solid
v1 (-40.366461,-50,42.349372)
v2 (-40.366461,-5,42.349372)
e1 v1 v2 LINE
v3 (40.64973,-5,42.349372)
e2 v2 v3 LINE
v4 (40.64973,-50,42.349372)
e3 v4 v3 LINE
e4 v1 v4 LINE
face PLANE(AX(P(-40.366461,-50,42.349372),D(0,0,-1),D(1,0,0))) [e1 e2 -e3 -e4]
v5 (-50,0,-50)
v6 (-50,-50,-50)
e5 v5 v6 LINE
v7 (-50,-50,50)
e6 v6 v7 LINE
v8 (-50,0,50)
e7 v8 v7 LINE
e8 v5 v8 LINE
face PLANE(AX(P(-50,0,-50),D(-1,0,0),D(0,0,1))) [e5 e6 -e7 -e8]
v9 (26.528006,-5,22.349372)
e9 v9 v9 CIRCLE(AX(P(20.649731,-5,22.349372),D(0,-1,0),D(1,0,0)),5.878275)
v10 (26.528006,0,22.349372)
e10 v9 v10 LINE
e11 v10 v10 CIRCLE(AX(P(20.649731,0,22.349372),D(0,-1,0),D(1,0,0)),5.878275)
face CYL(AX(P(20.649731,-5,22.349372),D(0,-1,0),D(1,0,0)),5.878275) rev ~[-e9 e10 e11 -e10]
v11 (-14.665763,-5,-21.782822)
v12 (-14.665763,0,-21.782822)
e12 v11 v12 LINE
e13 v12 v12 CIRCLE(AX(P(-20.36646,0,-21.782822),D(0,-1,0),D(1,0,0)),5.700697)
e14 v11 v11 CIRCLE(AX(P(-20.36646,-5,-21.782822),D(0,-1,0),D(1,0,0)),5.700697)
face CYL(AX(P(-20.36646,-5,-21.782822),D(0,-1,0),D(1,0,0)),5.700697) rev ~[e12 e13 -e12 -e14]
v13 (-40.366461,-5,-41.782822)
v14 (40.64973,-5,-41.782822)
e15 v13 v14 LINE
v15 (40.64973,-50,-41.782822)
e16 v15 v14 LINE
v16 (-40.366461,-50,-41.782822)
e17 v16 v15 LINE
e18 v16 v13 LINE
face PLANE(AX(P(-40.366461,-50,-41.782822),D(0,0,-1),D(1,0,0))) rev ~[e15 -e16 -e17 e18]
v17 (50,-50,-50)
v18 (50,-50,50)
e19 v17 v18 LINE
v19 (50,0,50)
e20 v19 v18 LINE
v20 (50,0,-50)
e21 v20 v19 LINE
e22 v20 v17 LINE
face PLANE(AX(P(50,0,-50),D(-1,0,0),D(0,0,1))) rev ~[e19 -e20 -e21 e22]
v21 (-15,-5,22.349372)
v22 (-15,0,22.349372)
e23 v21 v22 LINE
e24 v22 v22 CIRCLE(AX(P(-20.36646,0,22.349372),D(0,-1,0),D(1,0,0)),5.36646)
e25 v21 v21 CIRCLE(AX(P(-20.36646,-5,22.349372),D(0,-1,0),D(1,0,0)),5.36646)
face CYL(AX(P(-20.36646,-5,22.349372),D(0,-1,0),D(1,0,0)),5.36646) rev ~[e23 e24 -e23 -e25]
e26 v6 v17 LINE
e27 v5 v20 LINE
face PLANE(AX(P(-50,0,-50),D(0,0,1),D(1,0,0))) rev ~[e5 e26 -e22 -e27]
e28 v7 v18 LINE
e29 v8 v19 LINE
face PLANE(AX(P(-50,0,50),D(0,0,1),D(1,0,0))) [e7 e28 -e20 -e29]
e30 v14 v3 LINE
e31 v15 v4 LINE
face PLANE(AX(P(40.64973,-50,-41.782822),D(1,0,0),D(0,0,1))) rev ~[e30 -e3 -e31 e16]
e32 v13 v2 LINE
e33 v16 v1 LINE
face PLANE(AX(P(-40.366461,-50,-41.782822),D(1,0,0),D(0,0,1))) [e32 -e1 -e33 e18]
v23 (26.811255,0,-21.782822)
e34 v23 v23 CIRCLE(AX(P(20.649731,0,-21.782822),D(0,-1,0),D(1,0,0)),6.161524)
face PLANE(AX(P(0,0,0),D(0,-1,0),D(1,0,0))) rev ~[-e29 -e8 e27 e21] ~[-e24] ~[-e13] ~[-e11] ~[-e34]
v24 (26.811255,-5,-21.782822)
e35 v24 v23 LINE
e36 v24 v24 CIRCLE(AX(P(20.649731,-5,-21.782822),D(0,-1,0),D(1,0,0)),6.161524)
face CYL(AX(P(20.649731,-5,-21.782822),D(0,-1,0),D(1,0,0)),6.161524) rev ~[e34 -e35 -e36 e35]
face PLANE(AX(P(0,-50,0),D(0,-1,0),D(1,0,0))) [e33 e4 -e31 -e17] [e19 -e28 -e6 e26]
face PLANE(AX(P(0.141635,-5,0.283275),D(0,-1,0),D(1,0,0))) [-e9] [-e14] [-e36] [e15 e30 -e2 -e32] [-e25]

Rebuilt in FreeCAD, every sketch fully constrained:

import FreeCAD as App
import Part
import Sketcher
from FreeCAD import Vector

doc = App.newDocument("Part")
params = doc.addObject("Spreadsheet::Sheet", "Params")
for row, (alias, value) in enumerate([
    ("sketch1_width", "100 mm"),
    ("pad1_length", "50 mm"),
    ("pocket1_length", "45 mm"),
    ("pocket2_length", "25 mm"),
    ("pocket3_length", "19.5 mm"),
], start=1):
    params.set(f"A{row}", alias)
    params.set(f"B{row}", "=" + value)
    params.setAlias(f"B{row}", alias)

body = doc.addObject("PartDesign::Body", "Body")

sketch1 = body.newObject("Sketcher::SketchObject", "Sketch")
sketch1.AttachmentSupport = (doc.getObject("XZ_Plane"), [""])
sketch1.MapMode = "FlatFace"
sketch1.addGeometry([
    Part.LineSegment(Vector(-50, 50, 0), Vector(-50, -50, 0)),
    Part.LineSegment(Vector(-50, -50, 0), Vector(50, -50, 0)),
    Part.LineSegment(Vector(50, -50, 0), Vector(50, 50, 0)),
    Part.LineSegment(Vector(50, 50, 0), Vector(-50, 50, 0)),
], False)
sketch1.addConstraint([
    Sketcher.Constraint("Coincident", 0, 2, 1, 1),
    Sketcher.Constraint("Coincident", 1, 2, 2, 1),
    Sketcher.Constraint("Coincident", 2, 2, 3, 1),
    Sketcher.Constraint("Coincident", 3, 2, 0, 1),
    Sketcher.Constraint("Vertical", 0),
    Sketcher.Constraint("Horizontal", 1),
    Sketcher.Constraint("Vertical", 2),
    Sketcher.Constraint("Horizontal", 3),
    Sketcher.Constraint("Symmetric", 0, 2, 2, 2, -1, 1),
    Sketcher.Constraint("Equal", 3, 0),
    Sketcher.Constraint("DistanceX", 1, 1, 1, 2, 100.0),
])
sketch1.setExpression("Constraints[10]", "Params.sketch1_width")
pad1 = body.newObject("PartDesign::Pad", "Pad")
pad1.Profile = sketch1
pad1.setExpression("Length", "Params.pad1_length")

sketch2 = body.newObject("Sketcher::SketchObject", "Sketch001")
sketch2.AttachmentSupport = (doc.getObject("XZ_Plane"), [""])
sketch2.MapMode = "FlatFace"
sketch2.AttachmentOffset = App.Placement(Vector(0, 0, 50), App.Rotation())
sketch2.addGeometry([
    Part.LineSegment(Vector(-40, 42, 0), Vector(-40, -42, 0)),
    Part.LineSegment(Vector(-40, -42, 0), Vector(41, -42, 0)),
    Part.LineSegment(Vector(41, -42, 0), Vector(41, 42, 0)),
    Part.LineSegment(Vector(41, 42, 0), Vector(-40, 42, 0)),
], False)
sketch2.addConstraint([
    Sketcher.Constraint("Coincident", 0, 2, 1, 1),
    Sketcher.Constraint("Coincident", 1, 2, 2, 1),
    Sketcher.Constraint("Coincident", 2, 2, 3, 1),
    Sketcher.Constraint("Coincident", 3, 2, 0, 1),
    Sketcher.Constraint("Vertical", 0),
    Sketcher.Constraint("Horizontal", 1),
    Sketcher.Constraint("Vertical", 2),
    Sketcher.Constraint("Horizontal", 3),
    Sketcher.Constraint("DistanceX", 1, 1, 1, 2, 81.016191),
    Sketcher.Constraint("DistanceY", 0, 2, 0, 1, 84.132194),
    Sketcher.Constraint("DistanceX", 0, 2, -1, 1, 40.366461),
    Sketcher.Constraint("DistanceY", 0, 2, -1, 1, 41.782822),
])
pocket1 = body.newObject("PartDesign::Pocket", "Pocket")
pocket1.Profile = sketch2
pocket1.setExpression("Length", "Params.pocket1_length")

sketch3 = body.newObject("Sketcher::SketchObject", "Sketch002")
sketch3.AttachmentSupport = (doc.getObject("XZ_Plane"), [""])
sketch3.MapMode = "FlatFace"
sketch3.AttachmentOffset = App.Placement(Vector(0, 0, 5), App.Rotation())
sketch3.addGeometry([
    Part.Circle(Vector(-20, 22, 0), Vector(0, 0, 1), 5),
    Part.Circle(Vector(21, 22, 0), Vector(0, 0, 1), 6),
    Part.Circle(Vector(21, -22, 0), Vector(0, 0, 1), 6),
    Part.Circle(Vector(-20, -22, 0), Vector(0, 0, 1), 6),
], False)
sketch3.addConstraint([
    Sketcher.Constraint("Horizontal", 0, 3, 1, 3),
    Sketcher.Constraint("Horizontal", 2, 3, 3, 3),
    Sketcher.Constraint("Vertical", 1, 3, 2, 3),
    Sketcher.Constraint("Vertical", 0, 3, 3, 3),
    Sketcher.Constraint("Diameter", 0, 10.73292),
    Sketcher.Constraint("Diameter", 1, 11.75655),
    Sketcher.Constraint("Diameter", 2, 12.323048),
    Sketcher.Constraint("Diameter", 3, 11.401394),
    Sketcher.Constraint("DistanceX", 0, 3, -1, 1, 20.36646),
    Sketcher.Constraint("DistanceY", -1, 1, 0, 3, 22.349372),
    Sketcher.Constraint("DistanceX", -1, 1, 1, 3, 20.649731),
    Sketcher.Constraint("DistanceY", 2, 3, -1, 1, 21.782822),
])
pocket2 = body.newObject("PartDesign::Pocket", "Pocket001")
pocket2.Profile = sketch3
pocket2.setExpression("Length", "Params.pocket2_length")

sketch4 = body.newObject("Sketcher::SketchObject", "Sketch003")
sketch4.AttachmentSupport = (doc.getObject("XZ_Plane"), [""])
sketch4.MapMode = "FlatFace"
sketch4.AttachmentOffset = App.Placement(Vector(0, 0, 5), App.Rotation())
sketch4.addGeometry([
    Part.Circle(Vector(-20, -22, 0), Vector(0, 0, 1), 6),
    Part.Circle(Vector(-20, 22, 0), Vector(0, 0, 1), 5),
    Part.Circle(Vector(21, 22, 0), Vector(0, 0, 1), 6),
    Part.Circle(Vector(21, -22, 0), Vector(0, 0, 1), 6),
], False)
sketch4.addConstraint([
    Sketcher.Constraint("Horizontal", 1, 3, 2, 3),
    Sketcher.Constraint("Horizontal", 0, 3, 3, 3),
    Sketcher.Constraint("Vertical", 0, 3, 1, 3),
    Sketcher.Constraint("Vertical", 2, 3, 3, 3),
    Sketcher.Constraint("Diameter", 1, 10.73292),
    Sketcher.Constraint("Diameter", 2, 11.75655),
    Sketcher.Constraint("Diameter", 0, 11.401394),
    Sketcher.Constraint("Diameter", 3, 12.323048),
    Sketcher.Constraint("DistanceX", 0, 3, -1, 1, 20.36646),
    Sketcher.Constraint("DistanceY", 0, 3, -1, 1, 21.782822),
    Sketcher.Constraint("DistanceY", -1, 1, 1, 3, 22.349372),
    Sketcher.Constraint("DistanceX", -1, 1, 2, 3, 20.649731),
])
pocket3 = body.newObject("PartDesign::Pocket", "Pocket002")
pocket3.Profile = sketch4
pocket3.setExpression("Length", "Params.pocket3_length")

doc.recompute()
